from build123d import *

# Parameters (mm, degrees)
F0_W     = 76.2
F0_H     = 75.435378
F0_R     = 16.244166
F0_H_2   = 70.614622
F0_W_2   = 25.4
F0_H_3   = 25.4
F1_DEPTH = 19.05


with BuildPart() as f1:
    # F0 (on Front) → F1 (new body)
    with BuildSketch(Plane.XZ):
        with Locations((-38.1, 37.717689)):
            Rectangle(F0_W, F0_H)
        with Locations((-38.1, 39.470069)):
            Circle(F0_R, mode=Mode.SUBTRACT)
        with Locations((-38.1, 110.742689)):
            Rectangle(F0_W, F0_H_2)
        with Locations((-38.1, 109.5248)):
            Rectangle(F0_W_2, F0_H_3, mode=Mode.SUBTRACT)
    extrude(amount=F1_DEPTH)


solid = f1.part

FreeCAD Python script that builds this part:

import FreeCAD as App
import Part
import Sketcher
Q = App.Units.Quantity

doc = App.newDocument("Part")
body = doc.addObject("PartDesign::Body", "Body")

# Sketch on XZ plane
sketch1 = doc.addObject("Sketcher::SketchObject", "Sketch")
body.addObject(sketch1)
sketch1.AttachmentSupport = (doc.XZ_Plane, [""])
sketch1.MapMode = "FlatFace"
sketch1.addGeometry([
    Part.LineSegment(App.Vector(-76, 0, 0), App.Vector(0, 0, 0)),  # 0
    Part.LineSegment(App.Vector(0, 0, 0), App.Vector(0, 146, 0)),  # 1
    Part.LineSegment(App.Vector(0, 146, 0), App.Vector(-76, 146, 0)),  # 2
    Part.LineSegment(App.Vector(-76, 146, 0), App.Vector(-76, 0, 0)),  # 3
    Part.Circle(App.Vector(-38, 39, 0), App.Vector(0, 0, 1), 16),  # 4
    Part.LineSegment(App.Vector(-25, 97, 0), App.Vector(-51, 97, 0)),  # 5
    Part.LineSegment(App.Vector(-51, 97, 0), App.Vector(-51, 122, 0)),  # 6
    Part.LineSegment(App.Vector(-51, 122, 0), App.Vector(-25, 122, 0)),  # 7
    Part.LineSegment(App.Vector(-25, 122, 0), App.Vector(-25, 97, 0)),  # 8
], False)
sketch1.addConstraint([
    Sketcher.Constraint("Coincident", 0, 2, 1, 1),
    Sketcher.Constraint("Coincident", 1, 2, 2, 1),
    Sketcher.Constraint("Coincident", 2, 2, 3, 1),
    Sketcher.Constraint("Coincident", 3, 2, 0, 1),
    Sketcher.Constraint("Coincident", 5, 2, 6, 1),
    Sketcher.Constraint("Coincident", 6, 2, 7, 1),
    Sketcher.Constraint("Coincident", 7, 2, 8, 1),
    Sketcher.Constraint("Coincident", 8, 2, 5, 1),
    Sketcher.Constraint("Horizontal", 0),
    Sketcher.Constraint("Vertical", 1),
    Sketcher.Constraint("Horizontal", 2),
    Sketcher.Constraint("Vertical", 3),
    Sketcher.Constraint("Horizontal", 5),
    Sketcher.Constraint("Vertical", 6),
    Sketcher.Constraint("Horizontal", 7),
    Sketcher.Constraint("Vertical", 8),
    Sketcher.Constraint("Coincident", 0, 2, -1, 1),
    Sketcher.Constraint("Equal", 7, 6),
    Sketcher.Constraint("DistanceX", 0, 1, 0, 2, Q("3 in")),
    Sketcher.Constraint("DistanceX", 5, 2, 5, 1, Q("1 in")),
    Sketcher.Constraint("DistanceX", 5, 2, -1, 1, Q("2 in")),
    Sketcher.Constraint("DistanceY", 1, 1, 1, 2, Q("5.75 in")),
    Sketcher.Constraint("DistanceX", 4, 3, -1, 1, Q("1.5 in")),
    Sketcher.Constraint("DistanceY", -1, 1, 5, 2, Q("3.812 in")),
    Sketcher.Constraint("Diameter", 4, 32.488332),
    Sketcher.Constraint("DistanceY", -1, 1, 4, 3, 39.470069),
])
pad1 = doc.addObject("PartDesign::Pad", "Pad")
body.addObject(pad1)
pad1.Profile = sketch1
pad1.Length = Q("0.75 in")

doc.recompute()
